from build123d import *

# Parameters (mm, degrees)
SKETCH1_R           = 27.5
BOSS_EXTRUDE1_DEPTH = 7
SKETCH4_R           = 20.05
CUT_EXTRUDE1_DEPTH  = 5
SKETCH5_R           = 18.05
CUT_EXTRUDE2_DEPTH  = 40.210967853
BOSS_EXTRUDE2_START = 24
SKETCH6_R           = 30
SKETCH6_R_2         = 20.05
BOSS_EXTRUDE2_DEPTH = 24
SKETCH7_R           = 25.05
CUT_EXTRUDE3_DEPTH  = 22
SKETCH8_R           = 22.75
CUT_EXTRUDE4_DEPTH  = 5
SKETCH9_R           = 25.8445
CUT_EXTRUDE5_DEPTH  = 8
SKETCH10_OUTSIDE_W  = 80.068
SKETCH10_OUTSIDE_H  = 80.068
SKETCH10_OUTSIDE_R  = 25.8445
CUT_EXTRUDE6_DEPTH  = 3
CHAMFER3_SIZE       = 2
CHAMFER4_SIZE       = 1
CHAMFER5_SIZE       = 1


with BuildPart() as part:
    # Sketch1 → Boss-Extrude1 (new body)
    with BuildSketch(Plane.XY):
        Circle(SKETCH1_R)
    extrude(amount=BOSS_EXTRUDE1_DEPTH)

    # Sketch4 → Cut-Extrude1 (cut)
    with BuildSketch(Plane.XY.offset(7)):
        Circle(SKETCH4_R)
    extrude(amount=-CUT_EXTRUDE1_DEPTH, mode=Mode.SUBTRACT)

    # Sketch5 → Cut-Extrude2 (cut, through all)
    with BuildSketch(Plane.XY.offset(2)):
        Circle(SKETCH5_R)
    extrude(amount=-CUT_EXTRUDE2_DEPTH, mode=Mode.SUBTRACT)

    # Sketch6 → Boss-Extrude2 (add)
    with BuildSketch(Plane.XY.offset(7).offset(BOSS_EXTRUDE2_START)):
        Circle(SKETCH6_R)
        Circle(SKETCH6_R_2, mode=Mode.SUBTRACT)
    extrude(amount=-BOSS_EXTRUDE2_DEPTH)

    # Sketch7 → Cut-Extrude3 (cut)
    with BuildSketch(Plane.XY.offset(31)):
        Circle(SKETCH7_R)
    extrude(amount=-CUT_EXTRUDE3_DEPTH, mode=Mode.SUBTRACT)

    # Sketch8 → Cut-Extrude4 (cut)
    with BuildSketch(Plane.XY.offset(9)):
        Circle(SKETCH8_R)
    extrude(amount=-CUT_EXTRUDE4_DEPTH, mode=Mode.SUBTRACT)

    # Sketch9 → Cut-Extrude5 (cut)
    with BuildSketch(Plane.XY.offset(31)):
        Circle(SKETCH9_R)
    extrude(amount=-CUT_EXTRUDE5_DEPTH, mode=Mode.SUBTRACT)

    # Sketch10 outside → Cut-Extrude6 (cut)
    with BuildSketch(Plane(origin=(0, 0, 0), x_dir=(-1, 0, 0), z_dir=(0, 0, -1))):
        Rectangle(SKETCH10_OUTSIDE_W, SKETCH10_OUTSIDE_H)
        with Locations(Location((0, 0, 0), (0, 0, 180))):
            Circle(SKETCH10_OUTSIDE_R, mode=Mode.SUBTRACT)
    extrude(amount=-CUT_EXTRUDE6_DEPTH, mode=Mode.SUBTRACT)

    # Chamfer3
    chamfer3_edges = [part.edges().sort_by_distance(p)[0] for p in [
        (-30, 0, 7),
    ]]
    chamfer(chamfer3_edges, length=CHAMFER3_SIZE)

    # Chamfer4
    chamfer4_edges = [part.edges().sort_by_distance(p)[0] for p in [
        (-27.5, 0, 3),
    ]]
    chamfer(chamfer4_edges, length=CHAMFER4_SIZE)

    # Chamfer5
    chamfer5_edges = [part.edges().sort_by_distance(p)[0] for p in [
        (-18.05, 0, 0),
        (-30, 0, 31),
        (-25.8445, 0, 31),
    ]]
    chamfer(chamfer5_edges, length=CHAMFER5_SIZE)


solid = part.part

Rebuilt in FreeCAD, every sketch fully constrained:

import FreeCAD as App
import Part
import Sketcher

V = App.Vector


def edges_at(feature, points):
    """Names of the edges that pass closest to the given points."""
    edges = feature.Shape.Edges
    near = lambda p: min(range(len(edges)), key=lambda i: edges[i].distToShape(Part.Vertex(*p))[0])
    return sorted({f"Edge{near(p) + 1}" for p in points})

doc = App.newDocument("Part")
body = doc.addObject("PartDesign::Body", "Body")

sketch1 = body.newObject("Sketcher::SketchObject", "Sketch")
sketch1.AttachmentSupport = (doc.getObject("XY_Plane"), [""])
sketch1.MapMode = "FlatFace"
sketch1.addGeometry(Part.Circle(V(0, 0, 0), V(0, 0, 1), 28), False)
sketch1.addConstraint([
    Sketcher.Constraint("Coincident", 0, 3, -1, 1),
    Sketcher.Constraint("Diameter", 0, 55.0),
])
pad1 = body.newObject("PartDesign::Pad", "Pad")
pad1.Profile = sketch1
pad1.Length = 7

sketch2 = body.newObject("Sketcher::SketchObject", "Sketch001")
sketch2.AttachmentSupport = (doc.getObject("XY_Plane"), [""])
sketch2.MapMode = "FlatFace"
sketch2.AttachmentOffset = App.Placement(V(0, 0, 7), App.Rotation())
sketch2.addGeometry(Part.Circle(V(0, 0, 0), V(0, 0, 1), 20), False)
sketch2.addConstraint([
    Sketcher.Constraint("Coincident", 0, 3, -1, 1),
    Sketcher.Constraint("Diameter", 0, 40.1),
])
pocket1 = body.newObject("PartDesign::Pocket", "Pocket")
pocket1.Profile = sketch2
pocket1.Length = 5

sketch3 = body.newObject("Sketcher::SketchObject", "Sketch002")
sketch3.AttachmentSupport = (doc.getObject("XY_Plane"), [""])
sketch3.MapMode = "FlatFace"
sketch3.AttachmentOffset = App.Placement(V(0, 0, 2), App.Rotation())
sketch3.addGeometry(Part.Circle(V(0, 0, 0), V(0, 0, 1), 18), False)
sketch3.addConstraint([
    Sketcher.Constraint("Coincident", 0, 3, -1, 1),
    Sketcher.Constraint("Diameter", 0, 36.1),
])
pocket2 = body.newObject("PartDesign::Pocket", "Pocket001")
pocket2.Profile = sketch3
pocket2.Type = "ThroughAll"

sketch4 = body.newObject("Sketcher::SketchObject", "Sketch003")
sketch4.AttachmentSupport = (doc.getObject("XY_Plane"), [""])
sketch4.MapMode = "FlatFace"
sketch4.AttachmentOffset = App.Placement(V(0, 0, 31), App.Rotation())
sketch4.addGeometry([
    Part.Circle(V(0, 0, 0), V(0, 0, 1), 30),
    Part.Circle(V(0, 0, 0), V(0, 0, 1), 20),
], False)
sketch4.addConstraint([
    Sketcher.Constraint("Coincident", 0, 3, -1, 1),
    Sketcher.Constraint("Coincident", 1, 3, -1, 1),
    Sketcher.Constraint("Diameter", 0, 60.0),
    Sketcher.Constraint("Diameter", 1, 40.1),
])
pad2 = body.newObject("PartDesign::Pad", "Pad001")
pad2.Profile = sketch4
pad2.Length = 24
pad2.Reversed = True

sketch5 = body.newObject("Sketcher::SketchObject", "Sketch004")
sketch5.AttachmentSupport = (doc.getObject("XY_Plane"), [""])
sketch5.MapMode = "FlatFace"
sketch5.AttachmentOffset = App.Placement(V(0, 0, 31), App.Rotation())
sketch5.addGeometry(Part.Circle(V(0, 0, 0), V(0, 0, 1), 25), False)
sketch5.addConstraint([
    Sketcher.Constraint("Coincident", 0, 3, -1, 1),
    Sketcher.Constraint("Diameter", 0, 50.1),
])
pocket3 = body.newObject("PartDesign::Pocket", "Pocket002")
pocket3.Profile = sketch5
pocket3.Length = 22

sketch6 = body.newObject("Sketcher::SketchObject", "Sketch005")
sketch6.AttachmentSupport = (doc.getObject("XY_Plane"), [""])
sketch6.MapMode = "FlatFace"
sketch6.AttachmentOffset = App.Placement(V(0, 0, 9), App.Rotation())
sketch6.addGeometry(Part.Circle(V(0, 0, 0), V(0, 0, 1), 23), False)
sketch6.addConstraint([
    Sketcher.Constraint("Coincident", 0, 3, -1, 1),
    Sketcher.Constraint("Diameter", 0, 45.5),
])
pocket4 = body.newObject("PartDesign::Pocket", "Pocket003")
pocket4.Profile = sketch6
pocket4.Length = 5

sketch7 = body.newObject("Sketcher::SketchObject", "Sketch006")
sketch7.AttachmentSupport = (doc.getObject("XY_Plane"), [""])
sketch7.MapMode = "FlatFace"
sketch7.AttachmentOffset = App.Placement(V(0, 0, 31), App.Rotation())
sketch7.addGeometry(Part.Circle(V(0, 0, 0), V(0, 0, 1), 26), False)
sketch7.addConstraint([
    Sketcher.Constraint("Coincident", 0, 3, -1, 1),
    Sketcher.Constraint("Diameter", 0, 51.689),
])
pocket5 = body.newObject("PartDesign::Pocket", "Pocket004")
pocket5.Profile = sketch7
pocket5.Length = 8

sketch8 = body.newObject("Sketcher::SketchObject", "Sketch007")
sketch8.AttachmentSupport = (doc.getObject("XY_Plane"), [""])
sketch8.MapMode = "FlatFace"
sketch8.addGeometry([
    Part.LineSegment(V(40, 40, 0), V(40, -40, 0)),
    Part.LineSegment(V(40, -40, 0), V(-40, -40, 0)),
    Part.LineSegment(V(-40, -40, 0), V(-40, 40, 0)),
    Part.LineSegment(V(-40, 40, 0), V(40, 40, 0)),
    Part.Circle(V(0, 0, 0), V(0, 0, 1), 26),
], False)
sketch8.addConstraint([
    Sketcher.Constraint("Coincident", 0, 2, 1, 1),
    Sketcher.Constraint("Coincident", 1, 2, 2, 1),
    Sketcher.Constraint("Coincident", 2, 2, 3, 1),
    Sketcher.Constraint("Coincident", 3, 2, 0, 1),
    Sketcher.Constraint("Vertical", 0),
    Sketcher.Constraint("Horizontal", 1),
    Sketcher.Constraint("Vertical", 2),
    Sketcher.Constraint("Horizontal", 3),
    Sketcher.Constraint("Coincident", 4, 3, -1, 1),
    Sketcher.Constraint("Symmetric", 0, 2, 2, 2, -1, 1),
    Sketcher.Constraint("Equal", 3, 0),
    Sketcher.Constraint("Diameter", 4, 51.689),
    Sketcher.Constraint("DistanceX", 1, 2, 1, 1, 80.068),
])
pocket6 = body.newObject("PartDesign::Pocket", "Pocket005")
pocket6.Profile = sketch8
pocket6.Length = 3
pocket6.Reversed = True
doc.recompute()

chamfer = body.newObject("PartDesign::Chamfer", "Chamfer")
chamfer.Base = (pocket6, edges_at(pocket6, [(-30, 0, 7)]))
chamfer.Size = 2
doc.recompute()

chamfer2 = body.newObject("PartDesign::Chamfer", "Chamfer001")
chamfer2.Base = (chamfer, edges_at(chamfer, [(-27.5, 0, 3)]))
chamfer2.Size = 1
doc.recompute()

chamfer3 = body.newObject("PartDesign::Chamfer", "Chamfer002")
chamfer3.Base = (chamfer2, edges_at(chamfer2, [(-18.05, 0, 0), (-30, 0, 31), (-25.845, 0, 31)]))
chamfer3.Size = 1

doc.recompute()
